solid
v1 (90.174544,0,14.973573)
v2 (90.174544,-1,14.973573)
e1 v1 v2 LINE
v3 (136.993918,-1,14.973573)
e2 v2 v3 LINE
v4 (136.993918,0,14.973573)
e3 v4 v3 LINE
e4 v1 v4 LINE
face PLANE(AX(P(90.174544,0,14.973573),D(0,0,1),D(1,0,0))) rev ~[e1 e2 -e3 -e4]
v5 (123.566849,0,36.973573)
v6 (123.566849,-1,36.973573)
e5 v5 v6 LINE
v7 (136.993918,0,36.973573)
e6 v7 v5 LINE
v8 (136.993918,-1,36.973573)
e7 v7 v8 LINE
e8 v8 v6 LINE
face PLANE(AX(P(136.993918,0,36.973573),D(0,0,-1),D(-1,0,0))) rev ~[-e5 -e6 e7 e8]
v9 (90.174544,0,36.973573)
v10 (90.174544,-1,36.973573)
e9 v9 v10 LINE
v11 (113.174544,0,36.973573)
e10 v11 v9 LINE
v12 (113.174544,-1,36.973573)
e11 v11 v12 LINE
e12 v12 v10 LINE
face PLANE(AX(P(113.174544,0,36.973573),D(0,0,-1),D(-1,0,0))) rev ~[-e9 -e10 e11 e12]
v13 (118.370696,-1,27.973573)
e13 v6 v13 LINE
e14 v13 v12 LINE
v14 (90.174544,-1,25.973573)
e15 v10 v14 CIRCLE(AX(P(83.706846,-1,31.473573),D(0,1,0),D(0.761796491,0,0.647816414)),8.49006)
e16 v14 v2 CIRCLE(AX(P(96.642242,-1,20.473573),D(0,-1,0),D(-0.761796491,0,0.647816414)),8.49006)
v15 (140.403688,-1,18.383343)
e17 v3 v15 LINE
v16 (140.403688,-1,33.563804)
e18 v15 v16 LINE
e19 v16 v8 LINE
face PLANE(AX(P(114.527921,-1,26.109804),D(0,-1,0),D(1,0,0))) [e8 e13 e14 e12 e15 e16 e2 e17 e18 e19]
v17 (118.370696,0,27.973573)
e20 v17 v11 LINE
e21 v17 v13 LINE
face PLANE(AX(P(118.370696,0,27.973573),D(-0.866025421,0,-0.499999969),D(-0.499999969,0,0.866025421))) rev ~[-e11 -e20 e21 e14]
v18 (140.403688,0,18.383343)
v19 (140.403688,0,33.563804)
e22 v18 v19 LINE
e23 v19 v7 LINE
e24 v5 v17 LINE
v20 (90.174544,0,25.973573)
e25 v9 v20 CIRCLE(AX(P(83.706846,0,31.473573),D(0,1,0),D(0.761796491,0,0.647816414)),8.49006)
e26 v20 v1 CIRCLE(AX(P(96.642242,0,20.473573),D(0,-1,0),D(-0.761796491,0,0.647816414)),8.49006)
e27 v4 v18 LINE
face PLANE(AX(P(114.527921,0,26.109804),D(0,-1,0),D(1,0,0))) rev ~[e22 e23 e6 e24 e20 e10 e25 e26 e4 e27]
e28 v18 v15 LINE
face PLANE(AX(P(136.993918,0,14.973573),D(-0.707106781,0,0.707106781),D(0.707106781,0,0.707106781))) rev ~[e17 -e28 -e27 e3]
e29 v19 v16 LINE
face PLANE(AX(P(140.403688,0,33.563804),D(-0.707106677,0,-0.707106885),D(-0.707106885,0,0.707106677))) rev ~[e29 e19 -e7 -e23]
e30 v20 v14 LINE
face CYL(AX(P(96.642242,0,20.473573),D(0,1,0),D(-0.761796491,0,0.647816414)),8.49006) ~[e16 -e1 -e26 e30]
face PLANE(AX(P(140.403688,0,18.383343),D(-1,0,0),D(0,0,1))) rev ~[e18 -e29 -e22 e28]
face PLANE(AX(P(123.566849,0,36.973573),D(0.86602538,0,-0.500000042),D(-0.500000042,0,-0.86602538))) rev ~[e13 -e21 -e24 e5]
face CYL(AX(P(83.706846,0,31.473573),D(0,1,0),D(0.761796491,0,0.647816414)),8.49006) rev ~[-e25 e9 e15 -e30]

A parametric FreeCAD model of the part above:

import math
import FreeCAD as App
import Part
import Sketcher
Q = App.Units.Quantity

doc = App.newDocument("Part")
body = doc.addObject("PartDesign::Body", "Body")

sketch1 = body.newObject("Sketcher::SketchObject", "Sketch")
sketch1.AttachmentSupport = (doc.getObject("XZ_Plane"), [""])
sketch1.MapMode = "FlatFace"
sketch1.addGeometry(Part.LineSegment(App.Vector(113.2, 37, 0), App.Vector(90.2, 37, 0)), False)
sketch1.addGeometry(Part.ArcOfCircle(Part.Circle(App.Vector(83.7, 31.5, 0), App.Vector(0, 0, 1), 8.5), math.radians(-40), math.radians(40)), False)
sketch1.addGeometry(Part.ArcOfCircle(Part.Circle(App.Vector(96.6, 20.5, 0), App.Vector(0, 0, 1), 8.5), math.radians(140), math.radians(220)), False)
sketch1.addGeometry(Part.LineSegment(App.Vector(90.2, 15, 0), App.Vector(137, 15, 0)), False)
sketch1.addGeometry(Part.LineSegment(App.Vector(137, 15, 0), App.Vector(140.4, 18.4, 0)), False)
sketch1.addGeometry(Part.LineSegment(App.Vector(140.4, 18.4, 0), App.Vector(140.4, 33.6, 0)), False)
sketch1.addGeometry(Part.LineSegment(App.Vector(140.4, 33.6, 0), App.Vector(137, 37, 0)), False)
sketch1.addGeometry(Part.LineSegment(App.Vector(137, 37, 0), App.Vector(123.6, 37, 0)), False)
sketch1.addGeometry(Part.LineSegment(App.Vector(123.6, 37, 0), App.Vector(118.4, 28, 0)), False)
sketch1.addGeometry(Part.LineSegment(App.Vector(118.4, 28, 0), App.Vector(113.2, 37, 0)), False)
sketch1.addConstraint(Sketcher.Constraint("Coincident", 0, 2, 1, 2))
sketch1.addConstraint(Sketcher.Constraint("Tangent", 1, 1, 2, 1))
sketch1.addConstraint(Sketcher.Constraint("Coincident", 2, 2, 3, 1))
sketch1.addConstraint(Sketcher.Constraint("Coincident", 3, 2, 4, 1))
sketch1.addConstraint(Sketcher.Constraint("Coincident", 4, 2, 5, 1))
sketch1.addConstraint(Sketcher.Constraint("Coincident", 5, 2, 6, 1))
sketch1.addConstraint(Sketcher.Constraint("Coincident", 6, 2, 7, 1))
sketch1.addConstraint(Sketcher.Constraint("Coincident", 7, 2, 8, 1))
sketch1.addConstraint(Sketcher.Constraint("Coincident", 8, 2, 9, 1))
sketch1.addConstraint(Sketcher.Constraint("Coincident", 9, 2, 0, 1))
sketch1.addConstraint(Sketcher.Constraint("Horizontal", 0))
sketch1.addConstraint(Sketcher.Constraint("Horizontal", 3))
sketch1.addConstraint(Sketcher.Constraint("Vertical", 5))
sketch1.addConstraint(Sketcher.Constraint("Horizontal", 7))
sketch1.addConstraint(Sketcher.Constraint("Equal", 1, 2))
sketch1.addConstraint(Sketcher.Constraint("Perpendicular", 4, 6))
sketch1.addConstraint(Sketcher.Constraint("Horizontal", 0, 2, 6, 2))
sketch1.addConstraint(Sketcher.Constraint("Vertical", 0, 2, 1, 1))
sketch1.addConstraint(Sketcher.Constraint("Vertical", 1, 1, 2, 2))
sketch1.addConstraint(Sketcher.Constraint("Vertical", 3, 2, 6, 2))
sketch1.addConstraint(Sketcher.Constraint("Equal", 4, 6))
sketch1.addConstraint(Sketcher.Constraint("Equal", 8, 9))
sketch1.addConstraint(Sketcher.Constraint("DistanceX", 0, 2, 0, 1, Q("23 mm")))
sketch1.addConstraint(Sketcher.Constraint("Angle", 8, Q("-120.000003 deg")))
sketch1.addConstraint(Sketcher.Constraint("DistanceY", 2, 3, 1, 3, Q("11 mm")))
sketch1.addConstraint(Sketcher.Constraint("DistanceY", 8, 2, 7, 2, Q("9 mm")))
sketch1.addConstraint(Sketcher.Constraint("Radius", 1, Q("8.49006 mm")))
sketch1.addConstraint(Sketcher.Constraint("DistanceX", 7, 2, 7, 1, Q("13.427069 mm")))
sketch1.addConstraint(Sketcher.Constraint("DistanceY", 5, 1, 5, 2, Q("15.180461 mm")))
sketch1.addConstraint(Sketcher.Constraint("DistanceX", -1, 1, 2, 3, Q("96.642242 mm")))
sketch1.addConstraint(Sketcher.Constraint("DistanceY", -1, 1, 1, 3, Q("31.473573 mm")))
pad1 = body.newObject("PartDesign::Pad", "Pad")
pad1.Profile = sketch1
pad1.Length = 1

doc.recompute()
